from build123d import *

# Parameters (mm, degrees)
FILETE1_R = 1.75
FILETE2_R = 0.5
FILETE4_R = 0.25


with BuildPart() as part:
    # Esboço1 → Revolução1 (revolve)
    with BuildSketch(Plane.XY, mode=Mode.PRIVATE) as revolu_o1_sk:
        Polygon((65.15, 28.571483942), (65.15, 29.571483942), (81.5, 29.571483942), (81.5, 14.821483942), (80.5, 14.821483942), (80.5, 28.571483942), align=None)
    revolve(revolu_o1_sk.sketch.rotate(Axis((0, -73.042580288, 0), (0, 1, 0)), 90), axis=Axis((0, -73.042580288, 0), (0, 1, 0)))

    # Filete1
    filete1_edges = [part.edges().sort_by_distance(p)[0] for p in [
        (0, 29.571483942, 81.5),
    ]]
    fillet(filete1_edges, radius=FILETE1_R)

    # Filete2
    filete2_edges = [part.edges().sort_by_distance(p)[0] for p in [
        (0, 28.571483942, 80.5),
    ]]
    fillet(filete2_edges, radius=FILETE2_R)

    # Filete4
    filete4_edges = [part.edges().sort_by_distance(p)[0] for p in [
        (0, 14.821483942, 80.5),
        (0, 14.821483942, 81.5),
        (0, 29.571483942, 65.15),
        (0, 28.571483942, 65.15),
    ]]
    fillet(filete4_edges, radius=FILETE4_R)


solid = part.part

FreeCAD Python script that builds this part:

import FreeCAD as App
import Part
import Sketcher
Q = App.Units.Quantity


def edges_at(feature, points):
    """Names of the edges that pass closest to the given points."""
    edges = feature.Shape.Edges
    near = lambda p: min(range(len(edges)), key=lambda i: edges[i].distToShape(Part.Vertex(*p))[0])
    return sorted({f"Edge{near(p) + 1}" for p in points})

doc = App.newDocument("Part")
body = doc.addObject("PartDesign::Body", "Body")

# Sketch on XY plane
sketch1 = body.newObject("Sketcher::SketchObject", "Sketch")
sketch1.AttachmentSupport = (doc.getObject("XY_Plane"), [""])
sketch1.MapMode = "FlatFace"
sketch1.addGeometry([
    Part.LineSegment(App.Vector(65.2, 29.6, 0), App.Vector(65.2, 28.6, 0)),  # 0
    Part.LineSegment(App.Vector(65.2, 28.6, 0), App.Vector(80.5, 28.6, 0)),  # 1
    Part.LineSegment(App.Vector(80.5, 28.6, 0), App.Vector(80.5, 14.8, 0)),  # 2
    Part.LineSegment(App.Vector(80.5, 14.8, 0), App.Vector(81.5, 14.8, 0)),  # 3
    Part.LineSegment(App.Vector(81.5, 14.8, 0), App.Vector(81.5, 29.6, 0)),  # 4
    Part.LineSegment(App.Vector(81.5, 29.6, 0), App.Vector(65.2, 29.6, 0)),  # 5
], False)
sketch1.addConstraint([
    Sketcher.Constraint("Coincident", 0, 2, 1, 1),
    Sketcher.Constraint("Coincident", 1, 2, 2, 1),
    Sketcher.Constraint("Coincident", 2, 2, 3, 1),
    Sketcher.Constraint("Coincident", 3, 2, 4, 1),
    Sketcher.Constraint("Coincident", 4, 2, 5, 1),
    Sketcher.Constraint("Coincident", 5, 2, 0, 1),
    Sketcher.Constraint("Vertical", 0),
    Sketcher.Constraint("Horizontal", 1),
    Sketcher.Constraint("Vertical", 2),
    Sketcher.Constraint("Horizontal", 3),
    Sketcher.Constraint("Vertical", 4),
    Sketcher.Constraint("Horizontal", 5),
    Sketcher.Constraint("Equal", 3, 0),
    Sketcher.Constraint("DistanceX", 3, 1, 3, 2, Q("1 mm")),
    Sketcher.Constraint("DistanceX", 1, 1, 1, 2, Q("15.35 mm")),
    Sketcher.Constraint("DistanceY", 2, 2, 2, 1, Q("13.75 mm")),
    Sketcher.Constraint("DistanceX", -1, 1, 1, 2, Q("80.5 mm")),
    Sketcher.Constraint("DistanceY", -1, 1, 0, 2, Q("28.571484 mm")),
])
revolution = body.newObject("PartDesign::Revolution", "Revolution")
revolution.Profile = sketch1
revolution.ReferenceAxis = (sketch1, ["V_Axis"])
revolution.Angle = 360
doc.recompute()

fillet = body.newObject("PartDesign::Fillet", "Fillet")
fillet.Base = (revolution, edges_at(revolution, [(0, 29.571, 81.5)]))
fillet.Radius = 1.75
doc.recompute()

fillet2 = body.newObject("PartDesign::Fillet", "Fillet001")
fillet2.Base = (fillet, edges_at(fillet, [(0, 28.571, 80.5)]))
fillet2.Radius = 0.5
doc.recompute()

fillet3 = body.newObject("PartDesign::Fillet", "Fillet002")
fillet3.Base = (fillet2, edges_at(fillet2, [
    (0, 14.821, 80.5),
    (0, 14.821, 81.5),
    (0, 29.571, 65.15),
    (0, 28.571, 65.15),
]))
fillet3.Radius = 0.25

doc.recompute()
